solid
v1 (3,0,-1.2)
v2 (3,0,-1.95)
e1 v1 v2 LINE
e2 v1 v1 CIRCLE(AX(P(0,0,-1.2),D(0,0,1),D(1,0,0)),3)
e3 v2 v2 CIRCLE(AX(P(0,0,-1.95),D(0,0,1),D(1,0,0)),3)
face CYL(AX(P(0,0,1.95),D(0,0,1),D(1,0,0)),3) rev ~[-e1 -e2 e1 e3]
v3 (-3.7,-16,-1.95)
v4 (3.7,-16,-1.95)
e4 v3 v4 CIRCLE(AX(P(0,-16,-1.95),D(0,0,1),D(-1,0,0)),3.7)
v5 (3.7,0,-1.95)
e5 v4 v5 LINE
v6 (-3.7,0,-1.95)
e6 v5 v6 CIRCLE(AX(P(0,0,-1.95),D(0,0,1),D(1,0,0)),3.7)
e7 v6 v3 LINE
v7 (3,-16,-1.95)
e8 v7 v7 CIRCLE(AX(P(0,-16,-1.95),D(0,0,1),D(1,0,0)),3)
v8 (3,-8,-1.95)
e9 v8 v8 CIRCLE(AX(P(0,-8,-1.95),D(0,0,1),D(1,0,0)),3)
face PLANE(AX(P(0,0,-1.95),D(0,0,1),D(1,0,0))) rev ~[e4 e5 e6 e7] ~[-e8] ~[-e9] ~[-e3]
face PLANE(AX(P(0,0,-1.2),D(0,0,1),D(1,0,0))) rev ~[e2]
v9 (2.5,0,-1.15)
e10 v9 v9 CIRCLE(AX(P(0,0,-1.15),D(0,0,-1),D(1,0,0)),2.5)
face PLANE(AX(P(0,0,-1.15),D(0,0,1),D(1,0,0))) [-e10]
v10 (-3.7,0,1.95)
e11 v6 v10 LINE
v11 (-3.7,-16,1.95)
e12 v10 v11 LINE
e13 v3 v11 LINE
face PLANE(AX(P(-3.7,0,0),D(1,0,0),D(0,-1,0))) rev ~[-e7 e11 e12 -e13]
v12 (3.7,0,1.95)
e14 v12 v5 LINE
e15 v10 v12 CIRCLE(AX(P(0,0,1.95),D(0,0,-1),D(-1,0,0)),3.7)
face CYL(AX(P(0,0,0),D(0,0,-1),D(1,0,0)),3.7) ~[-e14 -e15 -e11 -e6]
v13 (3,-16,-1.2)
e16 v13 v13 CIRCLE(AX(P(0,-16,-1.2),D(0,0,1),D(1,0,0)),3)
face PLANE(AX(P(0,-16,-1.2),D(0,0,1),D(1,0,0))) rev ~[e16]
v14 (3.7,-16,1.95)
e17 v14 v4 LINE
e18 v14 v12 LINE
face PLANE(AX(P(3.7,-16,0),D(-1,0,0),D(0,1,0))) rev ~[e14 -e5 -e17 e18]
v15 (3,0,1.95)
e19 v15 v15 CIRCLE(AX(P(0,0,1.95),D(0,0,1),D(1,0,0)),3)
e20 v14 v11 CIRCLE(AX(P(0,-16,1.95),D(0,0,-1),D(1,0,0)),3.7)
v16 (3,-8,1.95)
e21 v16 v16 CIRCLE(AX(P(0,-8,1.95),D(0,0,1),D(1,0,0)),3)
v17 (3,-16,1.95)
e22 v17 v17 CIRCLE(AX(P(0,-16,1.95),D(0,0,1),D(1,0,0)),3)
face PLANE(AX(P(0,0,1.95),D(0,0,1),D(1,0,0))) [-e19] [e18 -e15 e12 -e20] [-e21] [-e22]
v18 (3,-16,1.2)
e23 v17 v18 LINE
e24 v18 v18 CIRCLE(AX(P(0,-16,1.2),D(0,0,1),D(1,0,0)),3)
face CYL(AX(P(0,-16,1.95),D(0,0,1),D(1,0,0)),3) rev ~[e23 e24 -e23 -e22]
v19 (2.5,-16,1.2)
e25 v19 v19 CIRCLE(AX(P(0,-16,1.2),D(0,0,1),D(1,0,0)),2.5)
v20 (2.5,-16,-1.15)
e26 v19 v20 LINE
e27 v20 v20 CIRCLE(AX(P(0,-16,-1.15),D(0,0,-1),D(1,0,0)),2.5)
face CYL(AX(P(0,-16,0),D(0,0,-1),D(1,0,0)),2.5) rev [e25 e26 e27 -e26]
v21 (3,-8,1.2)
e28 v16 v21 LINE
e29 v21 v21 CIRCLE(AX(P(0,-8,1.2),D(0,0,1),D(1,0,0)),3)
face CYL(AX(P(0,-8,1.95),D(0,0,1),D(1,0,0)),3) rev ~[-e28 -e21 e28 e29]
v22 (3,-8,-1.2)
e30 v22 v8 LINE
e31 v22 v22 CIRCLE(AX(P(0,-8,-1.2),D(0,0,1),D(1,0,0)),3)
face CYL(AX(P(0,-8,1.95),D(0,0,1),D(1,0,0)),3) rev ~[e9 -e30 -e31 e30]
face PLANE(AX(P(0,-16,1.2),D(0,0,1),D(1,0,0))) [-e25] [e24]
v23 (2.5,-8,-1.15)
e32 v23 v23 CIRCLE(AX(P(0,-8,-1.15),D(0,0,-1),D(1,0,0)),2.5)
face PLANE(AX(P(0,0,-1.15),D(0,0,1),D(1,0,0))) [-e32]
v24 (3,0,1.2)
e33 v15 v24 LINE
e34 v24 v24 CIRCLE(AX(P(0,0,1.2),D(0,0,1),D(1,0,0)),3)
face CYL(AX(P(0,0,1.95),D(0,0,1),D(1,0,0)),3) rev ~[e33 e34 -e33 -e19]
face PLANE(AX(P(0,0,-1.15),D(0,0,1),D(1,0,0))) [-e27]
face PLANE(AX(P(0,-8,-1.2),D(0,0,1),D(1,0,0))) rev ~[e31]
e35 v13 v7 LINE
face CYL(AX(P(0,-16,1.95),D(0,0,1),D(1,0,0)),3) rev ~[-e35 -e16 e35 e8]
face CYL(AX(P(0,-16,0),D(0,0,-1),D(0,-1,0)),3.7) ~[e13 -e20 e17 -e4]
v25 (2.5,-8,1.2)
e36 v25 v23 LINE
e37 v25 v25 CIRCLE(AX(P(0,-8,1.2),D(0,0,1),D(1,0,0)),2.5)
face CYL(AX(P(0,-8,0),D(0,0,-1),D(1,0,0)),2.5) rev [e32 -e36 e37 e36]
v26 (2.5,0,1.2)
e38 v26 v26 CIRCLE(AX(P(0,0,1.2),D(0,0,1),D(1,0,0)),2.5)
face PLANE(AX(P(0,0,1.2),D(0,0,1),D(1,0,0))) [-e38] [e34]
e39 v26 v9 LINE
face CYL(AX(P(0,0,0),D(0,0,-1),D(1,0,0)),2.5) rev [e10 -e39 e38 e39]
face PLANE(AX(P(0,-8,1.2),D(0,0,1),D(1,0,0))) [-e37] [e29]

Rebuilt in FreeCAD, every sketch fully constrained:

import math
import FreeCAD as App
import Part
import Sketcher

V = App.Vector
Q = App.Units.Quantity

doc = App.newDocument("Part")
body = doc.addObject("PartDesign::Body", "Body")

# Sketch on XY plane
sketch1 = body.newObject("Sketcher::SketchObject", "Sketch")
sketch1.AttachmentSupport = (doc.getObject("XY_Plane"), [""])
sketch1.MapMode = "FlatFace"
sketch1.addGeometry([
    Part.ArcOfCircle(Part.Circle(V(0, 0, 0), V(0, 0, 1), 3.7), math.radians(0), math.radians(180)),
    Part.LineSegment(V(-3.7, 0, 0), V(-3.7, -16, 0)),
    Part.ArcOfCircle(Part.Circle(V(0, -16, 0), V(0, 0, 1), 3.7), math.radians(180), math.radians(360)),
    Part.LineSegment(V(3.7, -16, 0), V(3.7, 0, 0)),
], False)
sketch1.addConstraint([
    Sketcher.Constraint("Tangent", 0, 2, 1, 1),
    Sketcher.Constraint("Tangent", 1, 2, 2, 1),
    Sketcher.Constraint("Tangent", 2, 2, 3, 1),
    Sketcher.Constraint("Tangent", 3, 2, 0, 1),
    Sketcher.Constraint("Vertical", 1),
    Sketcher.Constraint("Vertical", 3),
    Sketcher.Constraint("Coincident", 0, 3, -1, 1),
    Sketcher.Constraint("Radius", 0, Q("3.7 mm")),
    Sketcher.Constraint("DistanceY", 1, 2, 1, 1, Q("16 mm")),
])
pad1 = body.newObject("PartDesign::Pad", "Pad")
pad1.Profile = sketch1
pad1.Length = 3.9
pad1.Midplane = True

# Sketch on XY plane
sketch2 = body.newObject("Sketcher::SketchObject", "Sketch001")
sketch2.AttachmentSupport = (doc.getObject("XY_Plane"), [""])
sketch2.MapMode = "FlatFace"
sketch2.AttachmentOffset = App.Placement(V(0, 0, 1.95), App.Rotation())
sketch2.addGeometry(Part.Circle(V(0, 0, 0), V(0, 0, 1), 3), False)
sketch2.addConstraint([
    Sketcher.Constraint("Coincident", 0, 3, -1, 1),
    Sketcher.Constraint("Diameter", 0, Q("6 mm")),
])
pocket1 = body.newObject("PartDesign::Pocket", "Pocket")
pocket1.Profile = sketch2
pocket1.Length = 3.9

# Sketch on XY plane
sketch3 = body.newObject("Sketcher::SketchObject", "Sketch002")
sketch3.AttachmentSupport = (doc.getObject("XY_Plane"), [""])
sketch3.MapMode = "FlatFace"
sketch3.addGeometry([
    Part.Circle(V(0, 0, 0), V(0, 0, 1), 3),
    Part.Circle(V(0, 0, 0), V(0, 0, 1), 2.5),
], False)
sketch3.addConstraint([
    Sketcher.Constraint("Coincident", 0, 3, -1, 1),
    Sketcher.Constraint("Coincident", 1, 3, -1, 1),
    Sketcher.Constraint("Diameter", 0, Q("6 mm")),
    Sketcher.Constraint("Diameter", 1, Q("5 mm")),
])
pad2 = body.newObject("PartDesign::Pad", "Pad001")
pad2.Profile = sketch3
pad2.Length = 2.4
pad2.Midplane = True
doc.recompute()

linearpattern = body.newObject("PartDesign::LinearPattern", "LinearPattern")
linearpattern.Originals = [pocket1, pad2]
linearpattern.Direction = (doc.getObject("Y_Axis"), [""])
linearpattern.Mode = "offset"
linearpattern.Offset = 8
linearpattern.Occurrences = 3
linearpattern.Reversed = True
body.Tip = linearpattern

# Sketch on XY plane
sketch4 = body.newObject("Sketcher::SketchObject", "Sketch003")
sketch4.AttachmentSupport = (doc.getObject("XY_Plane"), [""])
sketch4.MapMode = "FlatFace"
sketch4.AttachmentOffset = App.Placement(V(0, 0, -1.2), App.Rotation())
sketch4.addGeometry([
    Part.ArcOfCircle(Part.Circle(V(0, 0, 0), V(0, 0, 1), 3.7), math.radians(0), math.radians(180)),
    Part.LineSegment(V(-3.7, 0, 0), V(-3.7, -16, 0)),
    Part.ArcOfCircle(Part.Circle(V(0, -16, 0), V(0, 0, 1), 3.7), math.radians(180), math.radians(360)),
    Part.LineSegment(V(3.7, -16, 0), V(3.7, 0, 0)),
], False)
sketch4.addConstraint([
    Sketcher.Constraint("Tangent", 0, 2, 1, 1),
    Sketcher.Constraint("Tangent", 1, 2, 2, 1),
    Sketcher.Constraint("Tangent", 2, 2, 3, 1),
    Sketcher.Constraint("Tangent", 3, 2, 0, 1),
    Sketcher.Constraint("Vertical", 1),
    Sketcher.Constraint("Vertical", 3),
    Sketcher.Constraint("Coincident", 0, 3, -1, 1),
    Sketcher.Constraint("Radius", 0, Q("3.7 mm")),
    Sketcher.Constraint("DistanceY", 1, 2, 1, 1, Q("16 mm")),
])
pad3 = body.newObject("PartDesign::Pad", "Pad002")
pad3.Profile = sketch4
pad3.Length = 0.05

doc.recompute()
